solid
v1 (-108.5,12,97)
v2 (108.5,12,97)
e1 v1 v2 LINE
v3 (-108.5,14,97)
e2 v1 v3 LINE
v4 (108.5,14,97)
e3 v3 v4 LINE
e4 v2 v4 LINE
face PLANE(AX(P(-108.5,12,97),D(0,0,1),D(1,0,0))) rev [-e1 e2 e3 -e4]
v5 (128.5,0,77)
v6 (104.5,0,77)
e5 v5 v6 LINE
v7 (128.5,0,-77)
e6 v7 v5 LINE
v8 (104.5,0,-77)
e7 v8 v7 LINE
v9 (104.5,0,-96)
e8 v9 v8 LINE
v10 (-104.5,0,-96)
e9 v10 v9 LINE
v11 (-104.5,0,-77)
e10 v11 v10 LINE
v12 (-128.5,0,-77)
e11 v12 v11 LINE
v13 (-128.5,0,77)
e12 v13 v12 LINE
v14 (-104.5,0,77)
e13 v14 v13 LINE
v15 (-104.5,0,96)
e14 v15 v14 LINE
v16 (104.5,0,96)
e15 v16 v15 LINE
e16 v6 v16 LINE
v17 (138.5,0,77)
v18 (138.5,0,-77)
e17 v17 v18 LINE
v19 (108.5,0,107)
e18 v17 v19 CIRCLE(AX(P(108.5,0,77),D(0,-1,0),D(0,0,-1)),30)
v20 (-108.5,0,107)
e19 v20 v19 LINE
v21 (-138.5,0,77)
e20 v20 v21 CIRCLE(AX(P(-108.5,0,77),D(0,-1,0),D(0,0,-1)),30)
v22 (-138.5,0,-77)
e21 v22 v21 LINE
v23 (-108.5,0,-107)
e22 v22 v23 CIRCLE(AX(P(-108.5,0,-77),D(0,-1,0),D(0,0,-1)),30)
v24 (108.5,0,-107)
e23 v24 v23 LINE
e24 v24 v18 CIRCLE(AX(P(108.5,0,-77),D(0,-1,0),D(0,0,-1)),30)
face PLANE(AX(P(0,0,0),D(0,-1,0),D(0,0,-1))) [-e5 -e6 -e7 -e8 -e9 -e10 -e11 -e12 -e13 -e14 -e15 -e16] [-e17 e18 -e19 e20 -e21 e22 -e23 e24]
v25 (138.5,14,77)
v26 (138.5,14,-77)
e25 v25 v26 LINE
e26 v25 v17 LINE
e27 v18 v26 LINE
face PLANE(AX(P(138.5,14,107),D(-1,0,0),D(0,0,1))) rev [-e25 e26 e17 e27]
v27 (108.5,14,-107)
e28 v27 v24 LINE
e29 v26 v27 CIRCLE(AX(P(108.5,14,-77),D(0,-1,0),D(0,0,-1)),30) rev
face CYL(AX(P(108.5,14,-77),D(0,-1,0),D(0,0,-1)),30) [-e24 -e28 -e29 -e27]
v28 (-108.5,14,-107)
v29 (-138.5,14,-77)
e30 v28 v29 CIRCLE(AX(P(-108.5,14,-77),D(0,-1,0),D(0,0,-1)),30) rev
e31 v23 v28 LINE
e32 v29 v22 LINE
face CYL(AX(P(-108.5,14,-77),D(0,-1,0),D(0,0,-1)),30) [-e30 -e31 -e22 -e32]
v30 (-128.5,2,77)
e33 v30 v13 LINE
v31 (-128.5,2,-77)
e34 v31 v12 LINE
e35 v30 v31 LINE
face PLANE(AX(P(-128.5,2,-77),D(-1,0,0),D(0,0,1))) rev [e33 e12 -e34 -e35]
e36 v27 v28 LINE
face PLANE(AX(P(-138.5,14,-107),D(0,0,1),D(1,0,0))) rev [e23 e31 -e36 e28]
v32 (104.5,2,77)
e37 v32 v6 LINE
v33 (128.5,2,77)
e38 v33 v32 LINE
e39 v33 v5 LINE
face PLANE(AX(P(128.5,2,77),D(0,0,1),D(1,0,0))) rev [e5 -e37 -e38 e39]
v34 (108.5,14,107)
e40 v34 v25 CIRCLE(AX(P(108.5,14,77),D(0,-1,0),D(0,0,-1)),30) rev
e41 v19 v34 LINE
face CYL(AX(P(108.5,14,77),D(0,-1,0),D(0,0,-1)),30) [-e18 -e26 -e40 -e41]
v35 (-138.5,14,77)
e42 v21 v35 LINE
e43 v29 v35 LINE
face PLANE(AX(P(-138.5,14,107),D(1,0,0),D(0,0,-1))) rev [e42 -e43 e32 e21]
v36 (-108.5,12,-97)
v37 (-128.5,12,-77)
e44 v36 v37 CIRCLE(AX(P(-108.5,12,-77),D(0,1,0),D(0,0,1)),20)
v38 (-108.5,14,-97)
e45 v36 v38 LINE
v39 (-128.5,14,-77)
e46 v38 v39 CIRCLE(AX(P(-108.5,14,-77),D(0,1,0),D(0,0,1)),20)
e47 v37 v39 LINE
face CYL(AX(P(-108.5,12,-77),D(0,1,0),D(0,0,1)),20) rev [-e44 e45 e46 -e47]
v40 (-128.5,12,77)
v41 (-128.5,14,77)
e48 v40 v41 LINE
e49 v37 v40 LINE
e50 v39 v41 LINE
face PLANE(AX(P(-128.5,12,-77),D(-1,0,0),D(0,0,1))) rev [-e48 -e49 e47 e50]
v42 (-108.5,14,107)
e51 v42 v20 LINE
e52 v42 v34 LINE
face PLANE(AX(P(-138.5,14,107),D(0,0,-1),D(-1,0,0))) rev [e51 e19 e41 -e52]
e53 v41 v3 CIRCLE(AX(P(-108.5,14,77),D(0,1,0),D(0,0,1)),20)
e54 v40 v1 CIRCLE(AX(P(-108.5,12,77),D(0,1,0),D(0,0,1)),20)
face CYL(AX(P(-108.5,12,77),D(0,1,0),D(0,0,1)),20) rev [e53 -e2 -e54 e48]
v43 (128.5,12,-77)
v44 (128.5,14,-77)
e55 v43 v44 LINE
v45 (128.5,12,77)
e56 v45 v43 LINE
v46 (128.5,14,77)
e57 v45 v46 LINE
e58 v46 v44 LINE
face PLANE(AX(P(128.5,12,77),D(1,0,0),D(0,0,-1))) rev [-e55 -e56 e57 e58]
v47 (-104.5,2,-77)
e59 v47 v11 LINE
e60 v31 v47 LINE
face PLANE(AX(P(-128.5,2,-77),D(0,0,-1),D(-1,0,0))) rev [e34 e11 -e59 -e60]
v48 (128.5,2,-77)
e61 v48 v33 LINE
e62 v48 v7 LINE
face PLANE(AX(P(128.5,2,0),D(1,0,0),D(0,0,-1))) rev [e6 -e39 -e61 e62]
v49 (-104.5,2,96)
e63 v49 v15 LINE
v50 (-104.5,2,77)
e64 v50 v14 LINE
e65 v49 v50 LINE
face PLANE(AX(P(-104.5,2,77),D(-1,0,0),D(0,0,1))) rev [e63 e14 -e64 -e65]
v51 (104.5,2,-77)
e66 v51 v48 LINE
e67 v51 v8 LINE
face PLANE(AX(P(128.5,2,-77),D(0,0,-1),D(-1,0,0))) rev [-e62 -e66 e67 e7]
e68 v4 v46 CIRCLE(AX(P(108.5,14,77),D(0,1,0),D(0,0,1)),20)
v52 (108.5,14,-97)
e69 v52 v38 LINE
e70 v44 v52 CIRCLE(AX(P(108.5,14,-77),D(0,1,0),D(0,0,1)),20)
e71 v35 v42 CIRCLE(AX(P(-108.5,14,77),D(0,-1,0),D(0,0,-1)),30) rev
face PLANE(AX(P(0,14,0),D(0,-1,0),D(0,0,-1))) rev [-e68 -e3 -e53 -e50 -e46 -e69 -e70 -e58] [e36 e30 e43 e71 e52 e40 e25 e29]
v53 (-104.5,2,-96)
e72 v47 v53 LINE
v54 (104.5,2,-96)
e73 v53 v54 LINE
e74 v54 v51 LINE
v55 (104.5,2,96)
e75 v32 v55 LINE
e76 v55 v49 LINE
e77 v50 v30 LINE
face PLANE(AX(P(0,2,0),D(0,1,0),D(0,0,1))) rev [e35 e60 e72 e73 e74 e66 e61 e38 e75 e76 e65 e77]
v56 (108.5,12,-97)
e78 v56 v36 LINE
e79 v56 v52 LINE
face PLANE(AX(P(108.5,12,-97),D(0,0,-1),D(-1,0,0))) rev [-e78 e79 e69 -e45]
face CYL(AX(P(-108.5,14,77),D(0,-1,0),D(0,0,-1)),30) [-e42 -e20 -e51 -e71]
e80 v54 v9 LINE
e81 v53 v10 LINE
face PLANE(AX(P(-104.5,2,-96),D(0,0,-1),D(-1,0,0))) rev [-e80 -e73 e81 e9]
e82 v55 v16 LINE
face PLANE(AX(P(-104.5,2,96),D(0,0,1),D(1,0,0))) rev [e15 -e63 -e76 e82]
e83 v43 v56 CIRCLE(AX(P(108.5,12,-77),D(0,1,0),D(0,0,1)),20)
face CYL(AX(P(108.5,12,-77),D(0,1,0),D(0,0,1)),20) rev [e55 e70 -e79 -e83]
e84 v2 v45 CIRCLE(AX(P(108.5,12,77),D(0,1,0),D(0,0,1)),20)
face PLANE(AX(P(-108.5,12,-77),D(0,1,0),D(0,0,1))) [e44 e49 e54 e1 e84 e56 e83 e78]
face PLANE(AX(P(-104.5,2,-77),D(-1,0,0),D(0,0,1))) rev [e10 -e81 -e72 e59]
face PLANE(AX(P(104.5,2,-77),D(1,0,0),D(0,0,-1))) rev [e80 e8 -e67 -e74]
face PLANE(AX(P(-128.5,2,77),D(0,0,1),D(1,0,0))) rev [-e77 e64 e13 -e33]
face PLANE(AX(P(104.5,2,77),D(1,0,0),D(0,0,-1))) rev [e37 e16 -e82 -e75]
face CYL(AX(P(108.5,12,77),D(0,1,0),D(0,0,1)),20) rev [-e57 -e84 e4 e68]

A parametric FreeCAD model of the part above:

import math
import FreeCAD as App
import Part
import Sketcher
from FreeCAD import Vector
Q = App.Units.Quantity


def edges_at(feature, points):
    """Names of the edges that pass closest to the given points."""
    edges = feature.Shape.Edges
    near = lambda p: min(range(len(edges)), key=lambda i: edges[i].distToShape(Part.Vertex(*p))[0])
    return sorted({f"Edge{near(p) + 1}" for p in points})

doc = App.newDocument("Part")
body = doc.addObject("PartDesign::Body", "Body")

# Sketch on XZ plane
sketch1 = body.newObject("Sketcher::SketchObject", "Sketch")
sketch1.AttachmentSupport = (doc.getObject("XZ_Plane"), [""])
sketch1.MapMode = "FlatFace"
sketch1.addGeometry([
    Part.LineSegment(Vector(-138.5, -107, 0), Vector(-138.5, 107, 0)),
    Part.LineSegment(Vector(-138.5, 107, 0), Vector(138.5, 107, 0)),
    Part.LineSegment(Vector(138.5, 107, 0), Vector(138.5, -107, 0)),
    Part.LineSegment(Vector(138.5, -107, 0), Vector(-138.5, -107, 0)),
], False)
sketch1.addConstraint([
    Sketcher.Constraint("Coincident", 0, 2, 1, 1),
    Sketcher.Constraint("Coincident", 1, 2, 2, 1),
    Sketcher.Constraint("Coincident", 2, 2, 3, 1),
    Sketcher.Constraint("Coincident", 3, 2, 0, 1),
    Sketcher.Constraint("Vertical", 0),
    Sketcher.Constraint("Horizontal", 1),
    Sketcher.Constraint("Vertical", 2),
    Sketcher.Constraint("Horizontal", 3),
    Sketcher.Constraint("Symmetric", 0, 2, 2, 2, -1, 1),
    Sketcher.Constraint("DistanceX", 1, 1, 1, 2, Q("277 mm")),
    Sketcher.Constraint("DistanceY", 0, 1, 0, 2, Q("214 mm")),
])
pad1 = body.newObject("PartDesign::Pad", "Pad")
pad1.Profile = sketch1
pad1.Length = 14
pad1.Reversed = True
doc.recompute()

fillet = body.newObject("PartDesign::Fillet", "Fillet")
fillet.Base = (pad1, edges_at(pad1, [
    (138.5, 7, 107),
    (-138.5, 7, 107),
    (-138.5, 7, -107),
    (138.5, 7, -107),
]))
fillet.Radius = 30

# Sketch on XZ plane
sketch2 = body.newObject("Sketcher::SketchObject", "Sketch001")
sketch2.AttachmentSupport = (doc.getObject("XZ_Plane"), [""])
sketch2.MapMode = "FlatFace"
sketch2.AttachmentOffset = App.Placement(Vector(0, 0, -14), App.Rotation())
sketch2.addGeometry([
    Part.LineSegment(Vector(-128.5, -77, 0), Vector(-128.5, 77, 0)),  # 0
    Part.ArcOfCircle(Part.Circle(Vector(-108.5, 77, 0), Vector(0, 0, 1), 20), math.radians(90), math.radians(180)),  # 1
    Part.LineSegment(Vector(-108.5, 97, 0), Vector(108.5, 97, 0)),  # 2
    Part.ArcOfCircle(Part.Circle(Vector(108.5, 77, 0), Vector(0, 0, 1), 20), math.radians(0), math.radians(90)),  # 3
    Part.LineSegment(Vector(128.5, 77, 0), Vector(128.5, -77, 0)),  # 4
    Part.ArcOfCircle(Part.Circle(Vector(108.5, -77, 0), Vector(0, 0, 1), 20), math.radians(-90), math.radians(0)),  # 5
    Part.LineSegment(Vector(108.5, -97, 0), Vector(-108.5, -97, 0)),  # 6
    Part.ArcOfCircle(Part.Circle(Vector(-108.5, -77, 0), Vector(0, 0, 1), 20), math.radians(180), math.radians(270)),  # 7
], False)
sketch2.addConstraint([
    Sketcher.Constraint("Tangent", 0, 2, 1, 2),
    Sketcher.Constraint("Tangent", 1, 1, 2, 1),
    Sketcher.Constraint("Tangent", 2, 2, 3, 2),
    Sketcher.Constraint("Tangent", 3, 1, 4, 1),
    Sketcher.Constraint("Tangent", 4, 2, 5, 2),
    Sketcher.Constraint("Tangent", 5, 1, 6, 1),
    Sketcher.Constraint("Tangent", 6, 2, 7, 2),
    Sketcher.Constraint("Tangent", 7, 1, 0, 1),
    Sketcher.Constraint("Vertical", 0),
    Sketcher.Constraint("Horizontal", 2),
    Sketcher.Constraint("Vertical", 4),
    Sketcher.Constraint("Horizontal", 6),
    Sketcher.Constraint("Equal", 1, 3),
    Sketcher.Constraint("Equal", 3, 5),
    Sketcher.Constraint("Equal", 5, 7),
    Sketcher.Constraint("Symmetric", 1, 3, 5, 3, -1, 1),
    Sketcher.Constraint("Radius", 1, Q("20 mm")),
    Sketcher.Constraint("DistanceX", 2, 1, 2, 2, Q("217 mm")),
    Sketcher.Constraint("DistanceY", 0, 1, 0, 2, Q("154 mm")),
])
pocket1 = body.newObject("PartDesign::Pocket", "Pocket")
pocket1.Profile = sketch2
pocket1.Length = 2
pocket1.Reversed = True

# Sketch on XZ plane
sketch3 = body.newObject("Sketcher::SketchObject", "Sketch002")
sketch3.AttachmentSupport = (doc.getObject("XZ_Plane"), [""])
sketch3.MapMode = "FlatFace"
sketch3.addGeometry([
    Part.LineSegment(Vector(104.5, 96, 0), Vector(-104.5, 96, 0)),  # 0
    Part.LineSegment(Vector(-104.5, 96, 0), Vector(-104.5, 77, 0)),  # 1
    Part.LineSegment(Vector(-104.5, 77, 0), Vector(-128.5, 77, 0)),  # 2
    Part.LineSegment(Vector(-128.5, 77, 0), Vector(-128.5, -77, 0)),  # 3
    Part.LineSegment(Vector(-128.5, -77, 0), Vector(-104.5, -77, 0)),  # 4
    Part.LineSegment(Vector(-104.5, -77, 0), Vector(-104.5, -96, 0)),  # 5
    Part.LineSegment(Vector(-104.5, -96, 0), Vector(104.5, -96, 0)),  # 6
    Part.LineSegment(Vector(104.5, -96, 0), Vector(104.5, -77, 0)),  # 7
    Part.LineSegment(Vector(104.5, -77, 0), Vector(128.5, -77, 0)),  # 8
    Part.LineSegment(Vector(128.5, -77, 0), Vector(128.5, 77, 0)),  # 9
    Part.LineSegment(Vector(128.5, 77, 0), Vector(104.5, 77, 0)),  # 10
    Part.LineSegment(Vector(104.5, 77, 0), Vector(104.5, 96, 0)),  # 11
], False)
sketch3.addConstraint([
    Sketcher.Constraint("Coincident", 0, 2, 1, 1),
    Sketcher.Constraint("Coincident", 1, 2, 2, 1),
    Sketcher.Constraint("Coincident", 2, 2, 3, 1),
    Sketcher.Constraint("Coincident", 3, 2, 4, 1),
    Sketcher.Constraint("Coincident", 4, 2, 5, 1),
    Sketcher.Constraint("Coincident", 5, 2, 6, 1),
    Sketcher.Constraint("Coincident", 6, 2, 7, 1),
    Sketcher.Constraint("Coincident", 7, 2, 8, 1),
    Sketcher.Constraint("Coincident", 8, 2, 9, 1),
    Sketcher.Constraint("Coincident", 9, 2, 10, 1),
    Sketcher.Constraint("Coincident", 10, 2, 11, 1),
    Sketcher.Constraint("Coincident", 11, 2, 0, 1),
    Sketcher.Constraint("Horizontal", 0),
    Sketcher.Constraint("Vertical", 1),
    Sketcher.Constraint("Horizontal", 2),
    Sketcher.Constraint("Vertical", 3),
    Sketcher.Constraint("Horizontal", 4),
    Sketcher.Constraint("Vertical", 5),
    Sketcher.Constraint("Horizontal", 6),
    Sketcher.Constraint("Vertical", 7),
    Sketcher.Constraint("Horizontal", 8),
    Sketcher.Constraint("Vertical", 9),
    Sketcher.Constraint("Horizontal", 10),
    Sketcher.Constraint("Vertical", 11),
    Sketcher.Constraint("Symmetric", 0, 2, 6, 2, -1, 1),
    Sketcher.Constraint("Symmetric", 2, 2, 8, 2, -1, 1),
    Sketcher.Constraint("Symmetric", 4, 2, 10, 2, -1, 1),
    Sketcher.Constraint("Symmetric", 4, 2, 7, 2, -2),
    Sketcher.Constraint("DistanceX", 0, 2, 0, 1, Q("209 mm")),
    Sketcher.Constraint("DistanceX", 2, 2, 2, 1, Q("24 mm")),
    Sketcher.Constraint("DistanceY", 1, 2, 1, 1, Q("19 mm")),
    Sketcher.Constraint("DistanceY", 3, 2, 3, 1, Q("154 mm")),
])
pocket2 = body.newObject("PartDesign::Pocket", "Pocket001")
pocket2.Profile = sketch3
pocket2.Length = 2

doc.recompute()
